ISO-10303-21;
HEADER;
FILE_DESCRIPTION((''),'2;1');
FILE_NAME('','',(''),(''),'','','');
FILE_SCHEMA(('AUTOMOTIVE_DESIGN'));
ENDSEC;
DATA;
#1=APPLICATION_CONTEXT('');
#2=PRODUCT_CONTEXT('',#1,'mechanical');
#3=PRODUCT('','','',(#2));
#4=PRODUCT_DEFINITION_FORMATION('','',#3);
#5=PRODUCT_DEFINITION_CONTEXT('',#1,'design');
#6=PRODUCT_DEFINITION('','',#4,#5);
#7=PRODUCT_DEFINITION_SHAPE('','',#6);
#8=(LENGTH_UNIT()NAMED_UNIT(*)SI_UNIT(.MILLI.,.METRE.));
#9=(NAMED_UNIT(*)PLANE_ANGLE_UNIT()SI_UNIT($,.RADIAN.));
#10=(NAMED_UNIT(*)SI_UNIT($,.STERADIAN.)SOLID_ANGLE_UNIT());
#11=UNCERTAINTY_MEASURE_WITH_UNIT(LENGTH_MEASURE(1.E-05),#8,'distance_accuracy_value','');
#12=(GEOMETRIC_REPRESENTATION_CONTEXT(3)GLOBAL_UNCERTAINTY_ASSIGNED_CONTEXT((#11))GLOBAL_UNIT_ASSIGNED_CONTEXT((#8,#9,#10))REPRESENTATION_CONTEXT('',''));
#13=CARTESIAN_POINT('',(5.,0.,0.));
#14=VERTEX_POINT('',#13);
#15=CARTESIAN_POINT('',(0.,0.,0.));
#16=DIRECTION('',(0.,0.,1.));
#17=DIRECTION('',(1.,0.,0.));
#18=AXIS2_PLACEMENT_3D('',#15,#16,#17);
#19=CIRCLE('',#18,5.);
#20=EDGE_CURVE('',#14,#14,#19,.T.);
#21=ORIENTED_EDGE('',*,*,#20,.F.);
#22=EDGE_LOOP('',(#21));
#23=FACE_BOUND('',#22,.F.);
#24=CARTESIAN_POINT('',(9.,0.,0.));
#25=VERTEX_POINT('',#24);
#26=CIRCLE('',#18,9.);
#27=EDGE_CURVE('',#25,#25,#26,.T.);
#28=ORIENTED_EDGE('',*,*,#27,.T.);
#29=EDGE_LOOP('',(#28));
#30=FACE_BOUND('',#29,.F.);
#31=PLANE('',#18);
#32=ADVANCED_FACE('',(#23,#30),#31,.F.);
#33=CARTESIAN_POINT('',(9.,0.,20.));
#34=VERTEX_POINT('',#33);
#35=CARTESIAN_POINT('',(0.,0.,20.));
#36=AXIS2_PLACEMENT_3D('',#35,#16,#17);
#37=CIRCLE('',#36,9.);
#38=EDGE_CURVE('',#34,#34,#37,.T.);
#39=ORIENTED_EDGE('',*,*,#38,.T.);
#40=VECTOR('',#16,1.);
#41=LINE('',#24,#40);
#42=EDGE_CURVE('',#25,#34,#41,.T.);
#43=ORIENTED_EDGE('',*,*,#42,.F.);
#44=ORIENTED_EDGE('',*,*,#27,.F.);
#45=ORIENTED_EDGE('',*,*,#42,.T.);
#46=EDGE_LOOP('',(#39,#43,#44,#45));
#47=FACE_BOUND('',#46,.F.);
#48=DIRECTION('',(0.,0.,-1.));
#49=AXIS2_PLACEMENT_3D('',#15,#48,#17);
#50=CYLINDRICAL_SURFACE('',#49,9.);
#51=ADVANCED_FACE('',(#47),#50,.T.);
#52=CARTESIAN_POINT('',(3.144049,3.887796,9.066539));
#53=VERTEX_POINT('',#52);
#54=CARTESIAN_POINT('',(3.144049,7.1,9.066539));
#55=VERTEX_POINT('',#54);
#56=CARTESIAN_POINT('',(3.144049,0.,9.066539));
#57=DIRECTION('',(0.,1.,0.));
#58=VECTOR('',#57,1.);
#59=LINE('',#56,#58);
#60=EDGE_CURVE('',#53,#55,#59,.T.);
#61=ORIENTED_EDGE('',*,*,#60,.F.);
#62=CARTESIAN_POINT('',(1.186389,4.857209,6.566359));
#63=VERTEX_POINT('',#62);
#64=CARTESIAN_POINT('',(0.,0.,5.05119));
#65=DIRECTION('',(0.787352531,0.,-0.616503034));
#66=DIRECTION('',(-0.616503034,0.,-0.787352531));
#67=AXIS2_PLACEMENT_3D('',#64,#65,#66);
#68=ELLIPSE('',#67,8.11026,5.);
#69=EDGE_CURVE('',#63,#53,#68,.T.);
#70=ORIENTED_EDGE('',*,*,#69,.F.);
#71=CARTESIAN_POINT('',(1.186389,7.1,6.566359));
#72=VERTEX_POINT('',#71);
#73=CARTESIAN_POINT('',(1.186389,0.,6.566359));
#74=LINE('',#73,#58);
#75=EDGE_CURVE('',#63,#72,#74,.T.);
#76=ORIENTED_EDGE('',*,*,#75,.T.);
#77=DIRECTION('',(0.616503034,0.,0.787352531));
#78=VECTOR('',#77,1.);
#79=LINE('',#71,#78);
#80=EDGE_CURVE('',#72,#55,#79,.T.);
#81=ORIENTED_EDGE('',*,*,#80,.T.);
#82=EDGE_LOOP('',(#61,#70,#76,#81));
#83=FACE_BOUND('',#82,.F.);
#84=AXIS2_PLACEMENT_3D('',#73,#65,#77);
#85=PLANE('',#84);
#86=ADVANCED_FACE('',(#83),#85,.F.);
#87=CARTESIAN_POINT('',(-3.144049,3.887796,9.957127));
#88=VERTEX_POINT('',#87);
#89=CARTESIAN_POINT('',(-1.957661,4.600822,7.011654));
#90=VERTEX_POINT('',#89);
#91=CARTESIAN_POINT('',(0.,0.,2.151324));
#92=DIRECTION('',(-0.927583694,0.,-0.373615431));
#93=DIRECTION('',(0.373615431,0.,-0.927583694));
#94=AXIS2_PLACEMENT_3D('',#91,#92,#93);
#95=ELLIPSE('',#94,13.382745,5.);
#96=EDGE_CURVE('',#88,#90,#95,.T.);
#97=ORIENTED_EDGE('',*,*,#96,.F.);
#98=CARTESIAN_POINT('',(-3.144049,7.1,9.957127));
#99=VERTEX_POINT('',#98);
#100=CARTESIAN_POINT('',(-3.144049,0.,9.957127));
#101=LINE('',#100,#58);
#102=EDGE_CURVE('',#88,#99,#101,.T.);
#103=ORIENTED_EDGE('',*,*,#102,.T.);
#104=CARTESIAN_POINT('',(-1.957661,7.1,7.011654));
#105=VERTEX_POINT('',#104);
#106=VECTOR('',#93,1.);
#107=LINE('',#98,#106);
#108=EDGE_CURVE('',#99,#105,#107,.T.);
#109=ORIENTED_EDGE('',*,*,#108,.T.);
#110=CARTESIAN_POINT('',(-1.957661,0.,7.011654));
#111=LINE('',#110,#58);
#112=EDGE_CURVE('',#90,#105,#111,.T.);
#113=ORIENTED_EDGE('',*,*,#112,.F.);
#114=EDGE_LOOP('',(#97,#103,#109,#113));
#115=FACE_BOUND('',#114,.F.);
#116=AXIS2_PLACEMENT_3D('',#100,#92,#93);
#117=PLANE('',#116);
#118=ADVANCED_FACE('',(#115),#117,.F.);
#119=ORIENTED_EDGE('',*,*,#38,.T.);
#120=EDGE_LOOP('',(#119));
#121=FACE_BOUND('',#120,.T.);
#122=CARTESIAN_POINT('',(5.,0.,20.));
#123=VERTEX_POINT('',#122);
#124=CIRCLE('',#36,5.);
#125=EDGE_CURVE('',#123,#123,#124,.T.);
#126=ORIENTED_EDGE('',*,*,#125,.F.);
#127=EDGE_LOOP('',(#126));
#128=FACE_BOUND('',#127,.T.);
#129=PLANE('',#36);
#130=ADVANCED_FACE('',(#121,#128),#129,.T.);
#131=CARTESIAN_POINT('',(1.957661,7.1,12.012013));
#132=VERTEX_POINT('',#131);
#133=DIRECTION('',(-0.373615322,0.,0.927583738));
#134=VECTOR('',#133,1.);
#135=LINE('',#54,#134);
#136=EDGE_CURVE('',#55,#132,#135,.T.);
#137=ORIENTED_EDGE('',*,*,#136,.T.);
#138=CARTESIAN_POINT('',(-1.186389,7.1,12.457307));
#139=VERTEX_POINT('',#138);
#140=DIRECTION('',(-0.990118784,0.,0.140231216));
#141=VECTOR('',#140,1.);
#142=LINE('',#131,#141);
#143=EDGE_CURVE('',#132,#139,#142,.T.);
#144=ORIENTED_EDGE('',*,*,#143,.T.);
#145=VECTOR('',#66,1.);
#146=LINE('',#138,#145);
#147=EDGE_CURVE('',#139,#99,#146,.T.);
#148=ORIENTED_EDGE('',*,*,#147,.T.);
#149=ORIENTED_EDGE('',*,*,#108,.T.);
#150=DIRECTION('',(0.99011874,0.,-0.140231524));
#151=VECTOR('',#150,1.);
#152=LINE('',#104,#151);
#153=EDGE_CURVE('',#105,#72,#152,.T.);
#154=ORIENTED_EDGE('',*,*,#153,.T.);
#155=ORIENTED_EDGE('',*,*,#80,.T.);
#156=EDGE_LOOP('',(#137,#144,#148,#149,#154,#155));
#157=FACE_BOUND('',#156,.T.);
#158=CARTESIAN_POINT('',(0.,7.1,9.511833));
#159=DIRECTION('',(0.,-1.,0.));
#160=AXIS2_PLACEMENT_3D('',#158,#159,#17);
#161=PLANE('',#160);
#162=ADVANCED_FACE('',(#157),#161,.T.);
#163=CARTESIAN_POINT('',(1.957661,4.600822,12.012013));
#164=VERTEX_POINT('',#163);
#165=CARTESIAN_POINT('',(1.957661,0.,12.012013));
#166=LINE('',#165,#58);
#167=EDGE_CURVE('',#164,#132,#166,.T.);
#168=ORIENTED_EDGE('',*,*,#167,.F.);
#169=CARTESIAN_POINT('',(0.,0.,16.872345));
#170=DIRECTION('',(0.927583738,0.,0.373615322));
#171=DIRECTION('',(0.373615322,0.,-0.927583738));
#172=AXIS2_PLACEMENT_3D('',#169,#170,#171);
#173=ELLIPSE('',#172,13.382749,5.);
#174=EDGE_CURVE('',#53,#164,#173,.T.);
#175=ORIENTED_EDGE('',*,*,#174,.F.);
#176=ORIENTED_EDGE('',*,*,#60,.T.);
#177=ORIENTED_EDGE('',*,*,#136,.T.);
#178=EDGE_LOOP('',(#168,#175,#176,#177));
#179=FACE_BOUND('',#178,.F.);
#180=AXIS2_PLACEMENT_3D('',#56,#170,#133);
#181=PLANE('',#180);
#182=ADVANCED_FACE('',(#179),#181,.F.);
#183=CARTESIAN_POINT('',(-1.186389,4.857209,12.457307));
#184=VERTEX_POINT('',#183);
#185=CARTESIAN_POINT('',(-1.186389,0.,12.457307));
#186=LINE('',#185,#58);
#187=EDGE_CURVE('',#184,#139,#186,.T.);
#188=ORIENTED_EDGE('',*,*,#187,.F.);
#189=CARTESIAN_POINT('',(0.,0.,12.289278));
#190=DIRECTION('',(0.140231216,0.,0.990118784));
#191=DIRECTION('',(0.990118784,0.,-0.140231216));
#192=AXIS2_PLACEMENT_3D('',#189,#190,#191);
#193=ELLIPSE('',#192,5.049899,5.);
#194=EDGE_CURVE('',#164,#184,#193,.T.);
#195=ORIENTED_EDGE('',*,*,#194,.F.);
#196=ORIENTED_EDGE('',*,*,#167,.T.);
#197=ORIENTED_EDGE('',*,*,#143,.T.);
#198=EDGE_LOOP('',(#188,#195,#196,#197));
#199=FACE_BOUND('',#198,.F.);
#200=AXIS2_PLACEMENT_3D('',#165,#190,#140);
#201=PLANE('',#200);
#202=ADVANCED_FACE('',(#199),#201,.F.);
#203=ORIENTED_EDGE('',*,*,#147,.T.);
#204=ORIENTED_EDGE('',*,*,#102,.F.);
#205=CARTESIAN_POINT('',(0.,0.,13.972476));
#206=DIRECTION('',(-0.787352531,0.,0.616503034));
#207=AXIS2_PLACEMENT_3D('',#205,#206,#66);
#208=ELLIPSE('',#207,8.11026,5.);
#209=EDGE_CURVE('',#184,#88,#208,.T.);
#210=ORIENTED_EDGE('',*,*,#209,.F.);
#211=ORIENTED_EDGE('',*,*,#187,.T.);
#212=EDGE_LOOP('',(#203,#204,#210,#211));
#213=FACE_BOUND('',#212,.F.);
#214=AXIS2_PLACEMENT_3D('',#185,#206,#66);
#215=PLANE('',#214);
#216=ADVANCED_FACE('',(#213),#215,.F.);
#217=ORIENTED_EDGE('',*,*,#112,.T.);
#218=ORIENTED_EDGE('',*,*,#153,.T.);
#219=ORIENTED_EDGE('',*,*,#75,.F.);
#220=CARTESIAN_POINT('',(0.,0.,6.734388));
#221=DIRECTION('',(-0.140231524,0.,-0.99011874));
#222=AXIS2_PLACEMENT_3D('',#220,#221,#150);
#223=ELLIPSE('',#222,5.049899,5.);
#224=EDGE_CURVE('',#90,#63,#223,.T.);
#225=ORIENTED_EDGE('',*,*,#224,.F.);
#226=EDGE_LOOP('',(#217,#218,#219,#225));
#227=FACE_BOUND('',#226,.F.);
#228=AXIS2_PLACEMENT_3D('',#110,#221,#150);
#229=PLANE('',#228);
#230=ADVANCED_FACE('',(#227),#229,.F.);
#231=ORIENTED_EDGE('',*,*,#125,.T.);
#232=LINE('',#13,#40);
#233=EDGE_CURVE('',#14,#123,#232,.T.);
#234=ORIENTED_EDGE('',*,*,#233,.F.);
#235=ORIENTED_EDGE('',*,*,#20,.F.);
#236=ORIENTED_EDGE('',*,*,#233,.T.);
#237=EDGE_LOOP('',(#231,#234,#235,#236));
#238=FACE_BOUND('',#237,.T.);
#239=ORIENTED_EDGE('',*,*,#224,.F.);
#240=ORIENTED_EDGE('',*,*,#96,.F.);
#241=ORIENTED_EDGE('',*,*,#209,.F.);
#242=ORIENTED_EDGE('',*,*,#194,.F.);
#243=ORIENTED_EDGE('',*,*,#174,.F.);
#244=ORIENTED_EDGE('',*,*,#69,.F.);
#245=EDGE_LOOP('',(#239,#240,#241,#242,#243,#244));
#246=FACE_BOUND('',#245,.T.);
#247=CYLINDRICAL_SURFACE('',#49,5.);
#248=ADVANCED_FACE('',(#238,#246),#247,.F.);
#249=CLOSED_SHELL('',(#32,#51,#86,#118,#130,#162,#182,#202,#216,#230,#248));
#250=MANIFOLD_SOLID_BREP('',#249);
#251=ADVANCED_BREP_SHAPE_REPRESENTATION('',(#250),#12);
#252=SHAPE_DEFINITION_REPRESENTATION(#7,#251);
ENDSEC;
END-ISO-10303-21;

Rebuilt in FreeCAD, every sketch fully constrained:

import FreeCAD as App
import Part
import Sketcher
from FreeCAD import Vector
Q = App.Units.Quantity


def add_polygon(sketch, points):
    """Adds a closed chain of lines whose ends are joined by coincident constraints."""
    first, n = sketch.GeometryCount, len(points)
    for a, b in zip(points, points[1:] + points[:1]):
        sketch.addGeometry(Part.LineSegment(App.Vector(*a, 0), App.Vector(*b, 0)), False)
    for i in range(n):
        sketch.addConstraint(Sketcher.Constraint("Coincident", first + i, 2, first + (i + 1) % n, 1))

doc = App.newDocument("Part")
params = doc.addObject("Spreadsheet::Sheet", "Params")
for row, (alias, value) in enumerate([
    ("sketch1_diameter", "18 mm"),
    ("sketch1_diameter2", "10 mm"),
    ("pad1_length", "20 mm"),
    ("pocket1_length", "7.1 mm"),
], start=1):
    params.set(f"A{row}", alias)
    params.set(f"B{row}", "=" + value)
    params.setAlias(f"B{row}", alias)

body = doc.addObject("PartDesign::Body", "Body")

# Sketch on XY plane
sketch1 = body.newObject("Sketcher::SketchObject", "Sketch")
sketch1.AttachmentSupport = (doc.getObject("XY_Plane"), [""])
sketch1.MapMode = "FlatFace"
sketch1.addGeometry([
    Part.Circle(Vector(0, 0, 0), Vector(0, 0, 1), 9),
    Part.Circle(Vector(0, 0, 0), Vector(0, 0, 1), 5),
], False)
sketch1.addConstraint([
    Sketcher.Constraint("Coincident", 0, 3, -1, 1),
    Sketcher.Constraint("Coincident", 1, 3, -1, 1),
    Sketcher.Constraint("Diameter", 0, Q("18 mm")),
    Sketcher.Constraint("Diameter", 1, Q("10 mm")),
])
sketch1.setExpression("Constraints[2]", "Params.sketch1_diameter")
sketch1.setExpression("Constraints[3]", "Params.sketch1_diameter2")
pad1 = body.newObject("PartDesign::Pad", "Pad")
pad1.Profile = sketch1
pad1.setExpression("Length", "Params.pad1_length")

# Sketch on XZ plane
sketch2 = body.newObject("Sketcher::SketchObject", "Sketch001")
sketch2.AttachmentSupport = (doc.getObject("XZ_Plane"), [""])
sketch2.MapMode = "FlatFace"
add_polygon(sketch2, [(-1.2, 12.5), (-3.1, 10), (-2, 7), (1.2, 6.6), (3.1, 9.1), (2, 12)])  # lines 0-5
sketch2.addConstraint([
    Sketcher.Constraint("Parallel", 0, 3),
    Sketcher.Constraint("Parallel", 1, 4),
    Sketcher.Constraint("Parallel", 2, 5),
    Sketcher.Constraint("Equal", 0, 1),
    Sketcher.Constraint("Equal", 1, 2),
    Sketcher.Constraint("Equal", 2, 3),
    Sketcher.Constraint("DistanceX", 0, 2, -1, 1, Q("3.144049 mm")),
    Sketcher.Constraint("DistanceX", 1, 2, -1, 1, Q("1.957661 mm")),
    Sketcher.Constraint("DistanceX", -1, 1, 2, 2, Q("1.186389 mm")),
    Sketcher.Constraint("DistanceY", -1, 1, 2, 2, Q("6.566359 mm")),
    Sketcher.Constraint("DistanceX", -1, 1, 3, 2, Q("3.144049 mm")),
    Sketcher.Constraint("DistanceY", -1, 1, 3, 2, Q("9.066539 mm")),
])
pocket1 = body.newObject("PartDesign::Pocket", "Pocket")
pocket1.Profile = sketch2
pocket1.setExpression("Length", "Params.pocket1_length")

doc.recompute()
